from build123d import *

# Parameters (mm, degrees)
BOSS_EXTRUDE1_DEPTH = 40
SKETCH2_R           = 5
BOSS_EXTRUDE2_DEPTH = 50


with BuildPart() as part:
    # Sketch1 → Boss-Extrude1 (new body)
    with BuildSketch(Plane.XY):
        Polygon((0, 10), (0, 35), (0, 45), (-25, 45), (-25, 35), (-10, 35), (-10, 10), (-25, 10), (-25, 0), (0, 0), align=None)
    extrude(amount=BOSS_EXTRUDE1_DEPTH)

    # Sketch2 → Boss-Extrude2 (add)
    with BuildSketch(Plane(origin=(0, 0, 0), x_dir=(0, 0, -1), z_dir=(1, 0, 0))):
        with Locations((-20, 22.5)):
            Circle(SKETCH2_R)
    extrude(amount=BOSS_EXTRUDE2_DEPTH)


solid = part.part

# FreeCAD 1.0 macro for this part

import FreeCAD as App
import Part
import Sketcher
Q = App.Units.Quantity


def add_polygon(sketch, points):
    """Adds a closed chain of lines whose ends are joined by coincident constraints."""
    first, n = sketch.GeometryCount, len(points)
    for a, b in zip(points, points[1:] + points[:1]):
        sketch.addGeometry(Part.LineSegment(App.Vector(*a, 0), App.Vector(*b, 0)), False)
    for i in range(n):
        sketch.addConstraint(Sketcher.Constraint("Coincident", first + i, 2, first + (i + 1) % n, 1))

doc = App.newDocument("Part")
body = doc.addObject("PartDesign::Body", "Body")

sketch1 = body.newObject("Sketcher::SketchObject", "Sketch")
sketch1.AttachmentSupport = (doc.getObject("XY_Plane"), [""])
sketch1.MapMode = "FlatFace"
add_polygon(sketch1, [(0, 45), (-25, 45), (-25, 35), (-10, 35), (-10, 10), (-25, 10), (-25, 0), (0, 0)])
sketch1.addConstraint([
    Sketcher.Constraint("Horizontal", 0),
    Sketcher.Constraint("Vertical", 1),
    Sketcher.Constraint("Horizontal", 2),
    Sketcher.Constraint("Vertical", 3),
    Sketcher.Constraint("Horizontal", 4),
    Sketcher.Constraint("Vertical", 5),
    Sketcher.Constraint("Horizontal", 6),
    Sketcher.Constraint("Vertical", 7),
    Sketcher.Constraint("Coincident", 6, 2, -1, 1),
    Sketcher.Constraint("Vertical", 1, 2, 4, 2),
    Sketcher.Constraint("Equal", 6, 3),
    Sketcher.Constraint("Equal", 1, 5),
    Sketcher.Constraint("DistanceX", 0, 2, 0, 1, Q("25 mm")),
    Sketcher.Constraint("DistanceX", 2, 1, 2, 2, Q("15 mm")),
    Sketcher.Constraint("DistanceY", 1, 2, 1, 1, Q("10 mm")),
])
pad1 = body.newObject("PartDesign::Pad", "Pad")
pad1.Profile = sketch1
pad1.Length = 40

sketch2 = body.newObject("Sketcher::SketchObject", "Sketch001")
sketch2.AttachmentSupport = (doc.getObject("YZ_Plane"), [""])
sketch2.MapMode = "FlatFace"
sketch2.addGeometry(Part.Circle(App.Vector(22.5, 20, 0), App.Vector(0, 0, 1), 5), False)
sketch2.addConstraint([
    Sketcher.Constraint("Diameter", 0, Q("10 mm")),
    Sketcher.Constraint("DistanceY", -1, 1, 0, 3, Q("20 mm")),
    Sketcher.Constraint("DistanceX", -1, 1, 0, 3, Q("22.5 mm")),
])
pad2 = body.newObject("PartDesign::Pad", "Pad001")
pad2.Profile = sketch2
pad2.Length = 50

doc.recompute()
